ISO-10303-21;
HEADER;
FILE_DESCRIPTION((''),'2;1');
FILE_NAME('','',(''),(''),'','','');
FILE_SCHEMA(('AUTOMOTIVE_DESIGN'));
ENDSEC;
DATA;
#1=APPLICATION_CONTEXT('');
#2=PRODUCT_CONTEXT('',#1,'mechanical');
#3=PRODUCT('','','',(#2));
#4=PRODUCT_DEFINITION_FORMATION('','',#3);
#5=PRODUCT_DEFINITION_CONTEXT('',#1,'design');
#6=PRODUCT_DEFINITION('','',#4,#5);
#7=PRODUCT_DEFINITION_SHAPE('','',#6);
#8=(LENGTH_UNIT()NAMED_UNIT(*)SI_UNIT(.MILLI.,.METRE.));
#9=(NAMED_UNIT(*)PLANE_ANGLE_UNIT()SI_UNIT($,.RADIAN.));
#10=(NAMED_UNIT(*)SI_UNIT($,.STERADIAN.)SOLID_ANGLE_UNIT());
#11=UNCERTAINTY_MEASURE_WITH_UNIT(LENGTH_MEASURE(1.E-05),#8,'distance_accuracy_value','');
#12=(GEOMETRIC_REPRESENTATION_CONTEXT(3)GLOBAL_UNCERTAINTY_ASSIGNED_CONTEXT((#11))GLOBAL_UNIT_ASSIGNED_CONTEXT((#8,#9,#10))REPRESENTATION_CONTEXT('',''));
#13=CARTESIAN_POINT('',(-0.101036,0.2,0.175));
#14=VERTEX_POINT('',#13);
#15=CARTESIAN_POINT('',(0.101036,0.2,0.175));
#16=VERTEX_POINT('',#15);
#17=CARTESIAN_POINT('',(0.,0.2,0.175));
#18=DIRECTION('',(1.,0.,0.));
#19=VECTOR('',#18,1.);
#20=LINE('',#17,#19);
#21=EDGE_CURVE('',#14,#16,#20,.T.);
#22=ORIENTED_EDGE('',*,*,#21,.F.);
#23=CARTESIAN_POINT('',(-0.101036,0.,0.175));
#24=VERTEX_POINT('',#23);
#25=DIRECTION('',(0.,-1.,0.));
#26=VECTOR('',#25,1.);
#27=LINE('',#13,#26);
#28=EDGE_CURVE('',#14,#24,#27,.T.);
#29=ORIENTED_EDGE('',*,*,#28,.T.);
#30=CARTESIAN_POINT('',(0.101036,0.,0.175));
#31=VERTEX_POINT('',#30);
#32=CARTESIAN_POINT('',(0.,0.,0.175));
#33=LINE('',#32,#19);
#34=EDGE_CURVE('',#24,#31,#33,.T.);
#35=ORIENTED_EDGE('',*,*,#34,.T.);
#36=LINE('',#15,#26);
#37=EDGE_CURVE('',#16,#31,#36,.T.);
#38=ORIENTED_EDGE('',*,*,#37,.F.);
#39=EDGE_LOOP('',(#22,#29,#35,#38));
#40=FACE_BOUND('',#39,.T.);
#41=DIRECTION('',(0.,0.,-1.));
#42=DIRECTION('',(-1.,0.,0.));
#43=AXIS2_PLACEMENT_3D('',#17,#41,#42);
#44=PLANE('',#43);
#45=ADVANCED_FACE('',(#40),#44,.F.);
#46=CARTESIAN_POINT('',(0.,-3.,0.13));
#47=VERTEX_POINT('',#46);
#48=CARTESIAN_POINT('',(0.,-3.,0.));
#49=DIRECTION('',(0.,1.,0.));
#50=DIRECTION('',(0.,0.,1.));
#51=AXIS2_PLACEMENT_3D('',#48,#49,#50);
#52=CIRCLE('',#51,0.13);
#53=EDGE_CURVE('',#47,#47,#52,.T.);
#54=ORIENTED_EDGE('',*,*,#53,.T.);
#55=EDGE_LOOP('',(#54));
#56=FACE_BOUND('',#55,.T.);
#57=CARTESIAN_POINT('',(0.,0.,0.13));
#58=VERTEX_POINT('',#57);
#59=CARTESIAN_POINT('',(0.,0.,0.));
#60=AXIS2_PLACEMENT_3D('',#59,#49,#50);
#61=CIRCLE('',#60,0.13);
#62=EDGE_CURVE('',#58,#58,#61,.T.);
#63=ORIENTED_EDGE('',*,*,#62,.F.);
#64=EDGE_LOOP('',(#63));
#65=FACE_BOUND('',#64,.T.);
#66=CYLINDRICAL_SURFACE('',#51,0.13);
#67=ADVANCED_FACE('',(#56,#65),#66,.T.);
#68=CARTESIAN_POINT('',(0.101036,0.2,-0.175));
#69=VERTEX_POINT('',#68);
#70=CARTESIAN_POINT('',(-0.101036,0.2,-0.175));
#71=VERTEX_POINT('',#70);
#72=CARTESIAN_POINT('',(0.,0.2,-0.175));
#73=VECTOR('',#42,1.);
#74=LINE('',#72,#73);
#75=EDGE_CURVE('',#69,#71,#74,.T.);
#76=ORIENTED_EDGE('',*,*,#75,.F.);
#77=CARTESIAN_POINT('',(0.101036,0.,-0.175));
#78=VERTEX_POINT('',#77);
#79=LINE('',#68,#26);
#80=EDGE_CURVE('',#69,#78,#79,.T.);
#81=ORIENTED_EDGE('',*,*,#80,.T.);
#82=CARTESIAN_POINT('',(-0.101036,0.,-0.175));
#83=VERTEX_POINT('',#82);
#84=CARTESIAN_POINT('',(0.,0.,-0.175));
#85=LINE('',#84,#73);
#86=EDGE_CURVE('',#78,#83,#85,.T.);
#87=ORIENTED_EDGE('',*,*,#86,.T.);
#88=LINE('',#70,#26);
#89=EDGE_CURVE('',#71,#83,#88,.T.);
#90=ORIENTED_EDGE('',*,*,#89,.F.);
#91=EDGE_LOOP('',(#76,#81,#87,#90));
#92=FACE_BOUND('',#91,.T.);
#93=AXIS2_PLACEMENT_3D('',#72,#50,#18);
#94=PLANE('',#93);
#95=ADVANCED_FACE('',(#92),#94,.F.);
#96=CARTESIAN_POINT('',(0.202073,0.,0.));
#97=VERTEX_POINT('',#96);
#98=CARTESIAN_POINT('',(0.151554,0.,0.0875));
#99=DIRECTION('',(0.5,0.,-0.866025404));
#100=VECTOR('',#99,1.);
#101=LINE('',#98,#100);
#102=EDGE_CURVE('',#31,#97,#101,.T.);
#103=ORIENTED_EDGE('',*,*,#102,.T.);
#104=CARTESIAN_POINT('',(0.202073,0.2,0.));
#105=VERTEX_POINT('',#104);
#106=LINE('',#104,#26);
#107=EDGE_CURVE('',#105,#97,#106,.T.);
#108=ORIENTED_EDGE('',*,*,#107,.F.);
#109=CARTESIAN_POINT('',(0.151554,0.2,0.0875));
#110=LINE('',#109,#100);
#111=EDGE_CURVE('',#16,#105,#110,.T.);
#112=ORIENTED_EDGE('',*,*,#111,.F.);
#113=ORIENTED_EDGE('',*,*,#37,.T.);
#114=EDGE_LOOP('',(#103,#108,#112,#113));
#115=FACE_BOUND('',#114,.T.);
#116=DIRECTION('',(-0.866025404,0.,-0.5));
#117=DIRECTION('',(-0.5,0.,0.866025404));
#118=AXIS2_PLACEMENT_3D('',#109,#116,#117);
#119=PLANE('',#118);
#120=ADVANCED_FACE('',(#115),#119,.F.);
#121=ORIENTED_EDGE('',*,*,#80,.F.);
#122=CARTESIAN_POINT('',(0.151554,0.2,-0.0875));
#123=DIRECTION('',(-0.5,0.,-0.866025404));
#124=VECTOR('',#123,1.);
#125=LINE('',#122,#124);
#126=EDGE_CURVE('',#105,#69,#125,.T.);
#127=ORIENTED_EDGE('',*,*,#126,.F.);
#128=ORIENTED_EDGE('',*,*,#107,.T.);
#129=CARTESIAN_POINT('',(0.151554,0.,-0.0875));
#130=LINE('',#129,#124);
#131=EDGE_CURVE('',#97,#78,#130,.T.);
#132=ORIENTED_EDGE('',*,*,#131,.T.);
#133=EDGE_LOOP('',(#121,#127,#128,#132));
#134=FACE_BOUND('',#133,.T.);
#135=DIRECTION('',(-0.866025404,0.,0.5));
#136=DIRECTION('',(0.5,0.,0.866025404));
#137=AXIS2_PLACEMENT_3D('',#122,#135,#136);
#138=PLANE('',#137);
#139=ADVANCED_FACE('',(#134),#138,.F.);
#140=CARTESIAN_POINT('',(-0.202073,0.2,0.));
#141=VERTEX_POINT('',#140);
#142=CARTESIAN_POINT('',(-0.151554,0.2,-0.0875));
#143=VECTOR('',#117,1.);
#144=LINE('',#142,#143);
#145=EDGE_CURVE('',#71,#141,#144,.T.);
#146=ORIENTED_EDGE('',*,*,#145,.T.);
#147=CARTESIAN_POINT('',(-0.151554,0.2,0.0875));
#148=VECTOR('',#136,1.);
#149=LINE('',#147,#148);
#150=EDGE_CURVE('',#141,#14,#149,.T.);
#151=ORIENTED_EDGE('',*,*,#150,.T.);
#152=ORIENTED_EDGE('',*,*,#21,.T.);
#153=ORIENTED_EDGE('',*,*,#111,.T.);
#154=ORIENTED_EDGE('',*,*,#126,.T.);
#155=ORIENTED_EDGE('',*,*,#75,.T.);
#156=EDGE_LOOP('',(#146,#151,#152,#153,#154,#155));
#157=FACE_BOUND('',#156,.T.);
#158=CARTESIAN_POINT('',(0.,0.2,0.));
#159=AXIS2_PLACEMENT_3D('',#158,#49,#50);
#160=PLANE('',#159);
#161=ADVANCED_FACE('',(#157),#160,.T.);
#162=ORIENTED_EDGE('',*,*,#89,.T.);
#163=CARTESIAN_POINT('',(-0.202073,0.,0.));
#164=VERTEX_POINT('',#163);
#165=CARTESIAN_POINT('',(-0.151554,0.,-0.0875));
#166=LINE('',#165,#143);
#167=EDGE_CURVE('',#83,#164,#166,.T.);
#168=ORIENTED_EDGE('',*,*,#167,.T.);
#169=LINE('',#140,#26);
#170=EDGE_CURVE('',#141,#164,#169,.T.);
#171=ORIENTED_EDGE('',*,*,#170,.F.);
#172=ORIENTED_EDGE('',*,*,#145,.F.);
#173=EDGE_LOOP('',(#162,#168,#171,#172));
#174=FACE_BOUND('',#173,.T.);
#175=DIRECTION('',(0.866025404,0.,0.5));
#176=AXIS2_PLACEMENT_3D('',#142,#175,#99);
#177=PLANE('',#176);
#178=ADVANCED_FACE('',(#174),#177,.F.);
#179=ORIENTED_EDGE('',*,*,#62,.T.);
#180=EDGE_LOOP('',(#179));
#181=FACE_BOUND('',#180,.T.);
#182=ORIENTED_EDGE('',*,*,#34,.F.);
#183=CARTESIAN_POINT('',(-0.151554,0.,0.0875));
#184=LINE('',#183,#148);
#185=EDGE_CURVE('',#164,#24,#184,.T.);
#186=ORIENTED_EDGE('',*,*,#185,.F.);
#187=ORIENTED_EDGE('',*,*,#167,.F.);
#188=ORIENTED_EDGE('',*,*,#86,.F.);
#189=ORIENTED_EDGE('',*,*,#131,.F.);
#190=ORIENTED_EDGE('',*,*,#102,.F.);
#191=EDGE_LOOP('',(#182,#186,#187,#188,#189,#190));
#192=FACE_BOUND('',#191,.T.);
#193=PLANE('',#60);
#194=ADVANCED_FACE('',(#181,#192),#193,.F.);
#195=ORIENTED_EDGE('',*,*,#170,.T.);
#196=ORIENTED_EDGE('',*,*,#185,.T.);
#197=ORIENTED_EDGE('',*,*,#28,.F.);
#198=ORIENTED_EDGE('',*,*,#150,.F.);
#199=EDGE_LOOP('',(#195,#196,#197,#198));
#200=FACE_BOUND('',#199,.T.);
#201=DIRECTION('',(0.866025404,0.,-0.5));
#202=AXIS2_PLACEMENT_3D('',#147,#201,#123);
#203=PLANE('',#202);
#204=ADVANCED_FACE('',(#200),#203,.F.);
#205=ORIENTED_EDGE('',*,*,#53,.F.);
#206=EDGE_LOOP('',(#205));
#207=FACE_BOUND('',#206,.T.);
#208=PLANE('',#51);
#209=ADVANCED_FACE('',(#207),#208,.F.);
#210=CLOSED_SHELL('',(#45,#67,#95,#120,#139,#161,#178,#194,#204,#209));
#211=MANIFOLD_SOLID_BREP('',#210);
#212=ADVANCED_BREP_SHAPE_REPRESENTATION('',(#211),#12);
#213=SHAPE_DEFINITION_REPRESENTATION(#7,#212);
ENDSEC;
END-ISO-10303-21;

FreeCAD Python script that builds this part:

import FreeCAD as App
import Part
import Sketcher
from FreeCAD import Vector
Q = App.Units.Quantity

doc = App.newDocument("Part")
body = doc.addObject("PartDesign::Body", "Body")

sketch1 = doc.addObject("Sketcher::SketchObject", "Sketch")
body.addObject(sketch1)
sketch1.AttachmentSupport = (doc.XZ_Plane, [""])
sketch1.MapMode = "FlatFace"
sketch1.addGeometry(Part.Circle(Vector(0, 0, 0), Vector(0, 0, 1), 0.13), False)
sketch1.addConstraint(Sketcher.Constraint("Coincident", 0, 3, -1, 1))
sketch1.addConstraint(Sketcher.Constraint("Diameter", 0, 0.26))
pad1 = doc.addObject("PartDesign::Pad", "Pad")
body.addObject(pad1)
pad1.Profile = sketch1
pad1.Length = 3

sketch2 = doc.addObject("Sketcher::SketchObject", "Sketch001")
body.addObject(sketch2)
sketch2.AttachmentSupport = (doc.XZ_Plane, [""])
sketch2.MapMode = "FlatFace"
sketch2.AttachmentOffset = App.Placement(Vector(0, 0, -0.2), App.Rotation())
sketch2.addGeometry(Part.LineSegment(Vector(-0.202073, 0, 0), Vector(-0.101036, 0.175, 0)), False)
sketch2.addGeometry(Part.LineSegment(Vector(-0.101036, 0.175, 0), Vector(0.101036, 0.175, 0)), False)
sketch2.addGeometry(Part.LineSegment(Vector(0.101036, 0.175, 0), Vector(0.202073, 0, 0)), False)
sketch2.addGeometry(Part.LineSegment(Vector(0.202073, 0, 0), Vector(0.101036, -0.175, 0)), False)
sketch2.addGeometry(Part.LineSegment(Vector(0.101036, -0.175, 0), Vector(-0.101036, -0.175, 0)), False)
sketch2.addGeometry(Part.LineSegment(Vector(-0.101036, -0.175, 0), Vector(-0.202073, 0, 0)), False)
sketch2.addConstraint(Sketcher.Constraint("Coincident", 0, 2, 1, 1))
sketch2.addConstraint(Sketcher.Constraint("Coincident", 1, 2, 2, 1))
sketch2.addConstraint(Sketcher.Constraint("Coincident", 2, 2, 3, 1))
sketch2.addConstraint(Sketcher.Constraint("Coincident", 3, 2, 4, 1))
sketch2.addConstraint(Sketcher.Constraint("Coincident", 4, 2, 5, 1))
sketch2.addConstraint(Sketcher.Constraint("Coincident", 5, 2, 0, 1))
sketch2.addConstraint(Sketcher.Constraint("Horizontal", 1))
sketch2.addConstraint(Sketcher.Constraint("Horizontal", 4))
sketch2.addConstraint(Sketcher.Constraint("Symmetric", 0, 2, 3, 2, -1, 1))
sketch2.addConstraint(Sketcher.Constraint("Symmetric", 2, 2, 5, 2, -1, 1))
sketch2.addConstraint(Sketcher.Constraint("PointOnObject", 2, 2, -1))
sketch2.addConstraint(Sketcher.Constraint("Parallel", 2, 5))
sketch2.addConstraint(Sketcher.Constraint("Vertical", 1, 2, 3, 2))
sketch2.addConstraint(Sketcher.Constraint("Angle", 0, Q("60 deg")))
sketch2.addConstraint(Sketcher.Constraint("DistanceY", 3, 2, 1, 2, 0.35))
sketch2.addConstraint(Sketcher.Constraint("DistanceX", 1, 1, 1, 2, 0.202073))
pad2 = doc.addObject("PartDesign::Pad", "Pad001")
body.addObject(pad2)
pad2.Profile = sketch2
pad2.Length = 0.2

doc.recompute()
